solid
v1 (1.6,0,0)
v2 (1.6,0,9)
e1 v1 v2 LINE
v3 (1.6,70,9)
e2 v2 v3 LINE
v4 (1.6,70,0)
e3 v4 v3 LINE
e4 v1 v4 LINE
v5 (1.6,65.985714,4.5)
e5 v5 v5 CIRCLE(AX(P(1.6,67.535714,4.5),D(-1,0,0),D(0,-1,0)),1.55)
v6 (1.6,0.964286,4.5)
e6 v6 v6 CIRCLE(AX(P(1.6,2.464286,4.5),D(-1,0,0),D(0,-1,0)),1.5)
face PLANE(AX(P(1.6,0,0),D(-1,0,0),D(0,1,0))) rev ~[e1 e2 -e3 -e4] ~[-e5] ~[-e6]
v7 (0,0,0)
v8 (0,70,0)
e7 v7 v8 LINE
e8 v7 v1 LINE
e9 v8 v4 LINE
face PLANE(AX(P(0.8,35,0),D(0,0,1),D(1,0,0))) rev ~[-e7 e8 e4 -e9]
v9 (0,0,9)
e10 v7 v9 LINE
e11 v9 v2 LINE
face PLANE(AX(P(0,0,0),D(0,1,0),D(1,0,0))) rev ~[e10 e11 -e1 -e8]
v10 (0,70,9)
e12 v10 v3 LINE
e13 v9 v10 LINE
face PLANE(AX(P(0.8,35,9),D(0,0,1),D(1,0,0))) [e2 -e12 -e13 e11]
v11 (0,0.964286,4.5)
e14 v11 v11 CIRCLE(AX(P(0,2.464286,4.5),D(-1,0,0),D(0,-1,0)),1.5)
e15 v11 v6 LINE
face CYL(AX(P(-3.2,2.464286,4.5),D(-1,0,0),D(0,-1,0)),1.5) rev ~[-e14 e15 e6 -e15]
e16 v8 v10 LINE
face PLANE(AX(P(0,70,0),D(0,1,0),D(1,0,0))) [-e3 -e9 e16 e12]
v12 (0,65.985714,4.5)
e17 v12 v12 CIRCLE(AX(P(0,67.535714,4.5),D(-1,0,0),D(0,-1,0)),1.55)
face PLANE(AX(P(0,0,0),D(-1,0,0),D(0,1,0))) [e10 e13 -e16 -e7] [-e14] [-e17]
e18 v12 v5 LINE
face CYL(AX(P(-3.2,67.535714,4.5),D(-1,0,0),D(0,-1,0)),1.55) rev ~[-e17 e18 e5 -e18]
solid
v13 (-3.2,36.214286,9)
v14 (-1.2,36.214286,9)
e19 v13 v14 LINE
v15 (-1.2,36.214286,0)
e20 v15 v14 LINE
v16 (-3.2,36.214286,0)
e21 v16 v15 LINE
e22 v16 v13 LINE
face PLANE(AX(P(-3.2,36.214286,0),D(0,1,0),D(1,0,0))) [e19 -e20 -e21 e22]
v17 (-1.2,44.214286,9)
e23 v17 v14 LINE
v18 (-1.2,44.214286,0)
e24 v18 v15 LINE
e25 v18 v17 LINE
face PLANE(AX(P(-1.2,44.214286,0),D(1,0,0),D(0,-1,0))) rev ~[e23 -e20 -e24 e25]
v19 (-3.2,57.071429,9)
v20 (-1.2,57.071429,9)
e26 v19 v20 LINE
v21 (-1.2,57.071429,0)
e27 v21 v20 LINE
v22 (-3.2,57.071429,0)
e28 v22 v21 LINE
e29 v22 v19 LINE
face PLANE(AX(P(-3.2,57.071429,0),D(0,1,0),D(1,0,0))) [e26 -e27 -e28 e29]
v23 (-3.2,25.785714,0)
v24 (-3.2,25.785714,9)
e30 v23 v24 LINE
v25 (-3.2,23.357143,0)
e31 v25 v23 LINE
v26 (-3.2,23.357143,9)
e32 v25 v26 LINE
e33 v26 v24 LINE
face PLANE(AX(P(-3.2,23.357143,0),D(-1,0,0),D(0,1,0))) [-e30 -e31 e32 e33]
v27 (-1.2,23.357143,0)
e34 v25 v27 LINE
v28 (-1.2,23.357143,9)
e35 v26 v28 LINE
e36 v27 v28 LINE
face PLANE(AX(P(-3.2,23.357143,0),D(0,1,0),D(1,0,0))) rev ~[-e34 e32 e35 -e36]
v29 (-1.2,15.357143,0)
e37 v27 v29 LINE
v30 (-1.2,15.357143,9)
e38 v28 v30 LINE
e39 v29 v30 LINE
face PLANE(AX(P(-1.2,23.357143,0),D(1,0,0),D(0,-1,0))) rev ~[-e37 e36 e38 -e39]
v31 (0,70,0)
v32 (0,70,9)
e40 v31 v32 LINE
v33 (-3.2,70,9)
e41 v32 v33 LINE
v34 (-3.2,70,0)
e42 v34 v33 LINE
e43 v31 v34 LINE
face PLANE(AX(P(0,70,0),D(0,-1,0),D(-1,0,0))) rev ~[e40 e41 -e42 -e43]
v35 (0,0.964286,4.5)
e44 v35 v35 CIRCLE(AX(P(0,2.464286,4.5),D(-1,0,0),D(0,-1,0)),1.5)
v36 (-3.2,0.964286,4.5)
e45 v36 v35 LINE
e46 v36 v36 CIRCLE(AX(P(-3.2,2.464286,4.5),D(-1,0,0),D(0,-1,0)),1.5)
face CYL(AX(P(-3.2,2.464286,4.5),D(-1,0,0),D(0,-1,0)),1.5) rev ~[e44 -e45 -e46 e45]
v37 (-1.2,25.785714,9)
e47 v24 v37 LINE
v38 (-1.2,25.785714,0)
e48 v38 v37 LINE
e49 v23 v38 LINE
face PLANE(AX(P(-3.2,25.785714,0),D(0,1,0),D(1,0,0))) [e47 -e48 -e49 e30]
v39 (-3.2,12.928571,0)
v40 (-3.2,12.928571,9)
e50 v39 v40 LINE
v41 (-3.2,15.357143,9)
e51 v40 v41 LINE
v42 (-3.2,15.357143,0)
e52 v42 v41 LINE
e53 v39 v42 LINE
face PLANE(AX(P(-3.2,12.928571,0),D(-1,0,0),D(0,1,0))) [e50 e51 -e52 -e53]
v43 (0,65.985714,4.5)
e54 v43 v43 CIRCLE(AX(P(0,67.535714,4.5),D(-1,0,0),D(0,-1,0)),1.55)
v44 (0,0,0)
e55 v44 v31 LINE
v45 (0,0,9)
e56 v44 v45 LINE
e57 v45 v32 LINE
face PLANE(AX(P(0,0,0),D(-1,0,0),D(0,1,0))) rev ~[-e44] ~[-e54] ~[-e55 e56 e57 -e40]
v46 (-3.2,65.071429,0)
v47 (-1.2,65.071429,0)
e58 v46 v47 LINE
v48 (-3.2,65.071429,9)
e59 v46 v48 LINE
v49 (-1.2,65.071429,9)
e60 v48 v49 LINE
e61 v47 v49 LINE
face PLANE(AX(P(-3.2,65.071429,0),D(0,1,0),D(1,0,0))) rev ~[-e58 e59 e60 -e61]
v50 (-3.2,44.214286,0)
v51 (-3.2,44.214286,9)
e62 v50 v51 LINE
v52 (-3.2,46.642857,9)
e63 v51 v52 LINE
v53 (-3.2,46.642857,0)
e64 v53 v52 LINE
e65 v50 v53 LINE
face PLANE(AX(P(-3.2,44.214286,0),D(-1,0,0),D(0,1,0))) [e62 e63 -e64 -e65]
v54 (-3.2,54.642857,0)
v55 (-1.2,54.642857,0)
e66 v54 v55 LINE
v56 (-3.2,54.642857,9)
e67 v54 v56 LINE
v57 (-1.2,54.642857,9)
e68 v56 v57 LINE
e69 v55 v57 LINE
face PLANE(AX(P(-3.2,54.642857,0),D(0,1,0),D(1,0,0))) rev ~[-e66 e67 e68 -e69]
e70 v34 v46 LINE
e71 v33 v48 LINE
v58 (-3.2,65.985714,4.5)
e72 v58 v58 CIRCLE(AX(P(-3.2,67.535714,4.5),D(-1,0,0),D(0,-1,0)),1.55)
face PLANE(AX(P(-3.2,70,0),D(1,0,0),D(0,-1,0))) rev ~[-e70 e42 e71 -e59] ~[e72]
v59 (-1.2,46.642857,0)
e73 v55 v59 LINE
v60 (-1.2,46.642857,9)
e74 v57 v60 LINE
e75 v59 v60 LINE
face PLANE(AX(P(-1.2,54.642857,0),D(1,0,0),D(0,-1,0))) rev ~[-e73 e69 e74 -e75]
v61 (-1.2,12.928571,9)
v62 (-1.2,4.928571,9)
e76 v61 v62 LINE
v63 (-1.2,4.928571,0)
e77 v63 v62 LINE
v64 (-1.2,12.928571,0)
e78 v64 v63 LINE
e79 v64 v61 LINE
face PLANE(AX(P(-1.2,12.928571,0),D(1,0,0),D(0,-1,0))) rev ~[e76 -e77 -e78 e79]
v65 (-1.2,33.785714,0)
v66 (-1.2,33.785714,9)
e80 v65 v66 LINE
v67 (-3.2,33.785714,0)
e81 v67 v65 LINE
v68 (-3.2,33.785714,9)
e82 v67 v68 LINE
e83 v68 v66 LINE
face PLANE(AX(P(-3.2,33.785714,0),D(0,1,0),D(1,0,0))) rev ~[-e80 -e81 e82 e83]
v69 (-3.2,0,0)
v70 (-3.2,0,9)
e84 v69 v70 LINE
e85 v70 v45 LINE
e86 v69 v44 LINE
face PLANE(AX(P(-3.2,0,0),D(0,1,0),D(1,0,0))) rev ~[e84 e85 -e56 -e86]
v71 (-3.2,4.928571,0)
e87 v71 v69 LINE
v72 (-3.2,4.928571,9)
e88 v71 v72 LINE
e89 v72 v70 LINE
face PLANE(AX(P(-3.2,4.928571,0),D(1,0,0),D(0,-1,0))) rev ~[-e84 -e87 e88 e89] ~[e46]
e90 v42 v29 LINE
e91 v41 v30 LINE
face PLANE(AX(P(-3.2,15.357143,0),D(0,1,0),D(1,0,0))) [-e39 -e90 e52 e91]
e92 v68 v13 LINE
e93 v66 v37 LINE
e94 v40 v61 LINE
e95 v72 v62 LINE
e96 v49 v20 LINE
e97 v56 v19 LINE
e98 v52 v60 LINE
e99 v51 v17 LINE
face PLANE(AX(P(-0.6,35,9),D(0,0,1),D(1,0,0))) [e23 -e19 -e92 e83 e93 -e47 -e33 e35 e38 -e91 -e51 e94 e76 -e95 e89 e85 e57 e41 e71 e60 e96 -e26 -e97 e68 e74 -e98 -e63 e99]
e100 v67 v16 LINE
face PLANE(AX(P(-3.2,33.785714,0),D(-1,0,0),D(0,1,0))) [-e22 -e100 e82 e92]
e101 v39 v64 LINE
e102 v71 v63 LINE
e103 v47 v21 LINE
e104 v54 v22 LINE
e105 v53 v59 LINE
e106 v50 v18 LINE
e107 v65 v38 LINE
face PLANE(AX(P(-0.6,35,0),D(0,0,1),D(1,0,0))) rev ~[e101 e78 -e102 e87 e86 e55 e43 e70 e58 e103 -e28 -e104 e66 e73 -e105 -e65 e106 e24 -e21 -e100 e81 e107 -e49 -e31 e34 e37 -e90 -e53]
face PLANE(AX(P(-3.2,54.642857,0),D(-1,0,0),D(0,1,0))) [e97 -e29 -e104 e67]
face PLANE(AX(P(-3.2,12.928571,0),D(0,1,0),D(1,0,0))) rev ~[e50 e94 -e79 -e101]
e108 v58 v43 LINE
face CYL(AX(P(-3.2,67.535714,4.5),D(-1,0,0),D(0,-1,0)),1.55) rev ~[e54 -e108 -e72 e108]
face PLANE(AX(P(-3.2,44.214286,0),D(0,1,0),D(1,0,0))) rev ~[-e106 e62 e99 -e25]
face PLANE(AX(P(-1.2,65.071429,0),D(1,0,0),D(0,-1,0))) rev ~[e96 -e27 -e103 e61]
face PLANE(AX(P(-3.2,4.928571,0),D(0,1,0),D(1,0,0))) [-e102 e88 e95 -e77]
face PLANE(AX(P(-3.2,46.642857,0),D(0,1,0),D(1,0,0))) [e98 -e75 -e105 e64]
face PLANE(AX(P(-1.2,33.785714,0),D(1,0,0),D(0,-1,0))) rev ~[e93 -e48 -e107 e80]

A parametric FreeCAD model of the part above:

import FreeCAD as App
import Part
import Sketcher
from FreeCAD import Vector
Q = App.Units.Quantity

doc = App.newDocument("Part")
body = doc.addObject("PartDesign::Body", "Body")

# Sketch on XY plane
sketch1 = body.newObject("Sketcher::SketchObject", "Sketch")
sketch1.AttachmentSupport = (doc.getObject("XY_Plane"), [""])
sketch1.MapMode = "FlatFace"
sketch1.addGeometry([
    Part.LineSegment(Vector(0, 70, 0), Vector(-3.2, 70, 0)),  # 0
    Part.LineSegment(Vector(-3.2, 70, 0), Vector(-3.2, 65.1, 0)),  # 1
    Part.LineSegment(Vector(-3.2, 65.1, 0), Vector(-1.2, 65.1, 0)),  # 2
    Part.LineSegment(Vector(-1.2, 65.1, 0), Vector(-1.2, 57.1, 0)),  # 3
    Part.LineSegment(Vector(-1.2, 57.1, 0), Vector(-3.2, 57.1, 0)),  # 4
    Part.LineSegment(Vector(-3.2, 57.1, 0), Vector(-3.2, 54.6, 0)),  # 5
    Part.LineSegment(Vector(-3.2, 54.6, 0), Vector(-1.2, 54.6, 0)),  # 6
    Part.LineSegment(Vector(-1.2, 54.6, 0), Vector(-1.2, 46.6, 0)),  # 7
    Part.LineSegment(Vector(-1.2, 46.6, 0), Vector(-3.2, 46.6, 0)),  # 8
    Part.LineSegment(Vector(-3.2, 46.6, 0), Vector(-3.2, 44.2, 0)),  # 9
    Part.LineSegment(Vector(-3.2, 44.2, 0), Vector(-1.2, 44.2, 0)),  # 10
    Part.LineSegment(Vector(-1.2, 44.2, 0), Vector(-1.2, 36.2, 0)),  # 11
    Part.LineSegment(Vector(-1.2, 36.2, 0), Vector(-3.2, 36.2, 0)),  # 12
    Part.LineSegment(Vector(-3.2, 36.2, 0), Vector(-3.2, 33.8, 0)),  # 13
    Part.LineSegment(Vector(-3.2, 33.8, 0), Vector(-1.2, 33.8, 0)),  # 14
    Part.LineSegment(Vector(-1.2, 33.8, 0), Vector(-1.2, 25.8, 0)),  # 15
    Part.LineSegment(Vector(-1.2, 25.8, 0), Vector(-3.2, 25.8, 0)),  # 16
    Part.LineSegment(Vector(-3.2, 25.8, 0), Vector(-3.2, 23.4, 0)),  # 17
    Part.LineSegment(Vector(-3.2, 23.4, 0), Vector(-1.2, 23.4, 0)),  # 18
    Part.LineSegment(Vector(-1.2, 23.4, 0), Vector(-1.2, 15.4, 0)),  # 19
    Part.LineSegment(Vector(-1.2, 15.4, 0), Vector(-3.2, 15.4, 0)),  # 20
    Part.LineSegment(Vector(-3.2, 15.4, 0), Vector(-3.2, 12.9, 0)),  # 21
    Part.LineSegment(Vector(-3.2, 12.9, 0), Vector(-1.2, 12.9, 0)),  # 22
    Part.LineSegment(Vector(-1.2, 12.9, 0), Vector(-1.2, 4.9, 0)),  # 23
    Part.LineSegment(Vector(-1.2, 4.9, 0), Vector(-3.2, 4.9, 0)),  # 24
    Part.LineSegment(Vector(-3.2, 4.9, 0), Vector(-3.2, 0, 0)),  # 25
    Part.LineSegment(Vector(-3.2, 0, 0), Vector(0, 0, 0)),  # 26
    Part.LineSegment(Vector(0, 0, 0), Vector(0, 70, 0)),  # 27
], False)
sketch1.addConstraint([
    Sketcher.Constraint("Coincident", 0, 2, 1, 1),
    Sketcher.Constraint("Coincident", 1, 2, 2, 1),
    Sketcher.Constraint("Coincident", 2, 2, 3, 1),
    Sketcher.Constraint("Coincident", 3, 2, 4, 1),
    Sketcher.Constraint("Coincident", 4, 2, 5, 1),
    Sketcher.Constraint("Coincident", 5, 2, 6, 1),
    Sketcher.Constraint("Coincident", 6, 2, 7, 1),
    Sketcher.Constraint("Coincident", 7, 2, 8, 1),
    Sketcher.Constraint("Coincident", 8, 2, 9, 1),
    Sketcher.Constraint("Coincident", 9, 2, 10, 1),
    Sketcher.Constraint("Coincident", 10, 2, 11, 1),
    Sketcher.Constraint("Coincident", 11, 2, 12, 1),
    Sketcher.Constraint("Coincident", 12, 2, 13, 1),
    Sketcher.Constraint("Coincident", 13, 2, 14, 1),
    Sketcher.Constraint("Coincident", 14, 2, 15, 1),
    Sketcher.Constraint("Coincident", 15, 2, 16, 1),
    Sketcher.Constraint("Coincident", 16, 2, 17, 1),
    Sketcher.Constraint("Coincident", 17, 2, 18, 1),
    Sketcher.Constraint("Coincident", 18, 2, 19, 1),
    Sketcher.Constraint("Coincident", 19, 2, 20, 1),
    Sketcher.Constraint("Coincident", 20, 2, 21, 1),
    Sketcher.Constraint("Coincident", 21, 2, 22, 1),
    Sketcher.Constraint("Coincident", 22, 2, 23, 1),
    Sketcher.Constraint("Coincident", 23, 2, 24, 1),
    Sketcher.Constraint("Coincident", 24, 2, 25, 1),
    Sketcher.Constraint("Coincident", 25, 2, 26, 1),
    Sketcher.Constraint("Coincident", 26, 2, 27, 1),
    Sketcher.Constraint("Coincident", 27, 2, 0, 1),
    Sketcher.Constraint("Horizontal", 0),
    Sketcher.Constraint("Vertical", 1),
    Sketcher.Constraint("Horizontal", 2),
    Sketcher.Constraint("Vertical", 3),
    Sketcher.Constraint("Horizontal", 4),
    Sketcher.Constraint("Vertical", 5),
    Sketcher.Constraint("Horizontal", 6),
    Sketcher.Constraint("Vertical", 7),
    Sketcher.Constraint("Horizontal", 8),
    Sketcher.Constraint("Vertical", 9),
    Sketcher.Constraint("Horizontal", 10),
    Sketcher.Constraint("Vertical", 11),
    Sketcher.Constraint("Horizontal", 12),
    Sketcher.Constraint("Vertical", 13),
    Sketcher.Constraint("Horizontal", 14),
    Sketcher.Constraint("Vertical", 15),
    Sketcher.Constraint("Horizontal", 16),
    Sketcher.Constraint("Vertical", 17),
    Sketcher.Constraint("Horizontal", 18),
    Sketcher.Constraint("Vertical", 19),
    Sketcher.Constraint("Horizontal", 20),
    Sketcher.Constraint("Vertical", 21),
    Sketcher.Constraint("Horizontal", 22),
    Sketcher.Constraint("Vertical", 23),
    Sketcher.Constraint("Horizontal", 24),
    Sketcher.Constraint("Vertical", 25),
    Sketcher.Constraint("Horizontal", 26),
    Sketcher.Constraint("Vertical", 27),
    Sketcher.Constraint("Coincident", 26, 2, -1, 1),
    Sketcher.Constraint("Vertical", 1, 2, 4, 2),
    Sketcher.Constraint("Vertical", 3, 2, 6, 2),
    Sketcher.Constraint("Vertical", 5, 2, 8, 2),
    Sketcher.Constraint("Vertical", 7, 2, 10, 2),
    Sketcher.Constraint("Vertical", 9, 2, 12, 2),
    Sketcher.Constraint("Vertical", 11, 2, 14, 2),
    Sketcher.Constraint("Vertical", 13, 2, 16, 2),
    Sketcher.Constraint("Vertical", 15, 2, 18, 2),
    Sketcher.Constraint("Vertical", 17, 2, 20, 2),
    Sketcher.Constraint("Vertical", 19, 2, 22, 2),
    Sketcher.Constraint("Vertical", 21, 2, 24, 2),
    Sketcher.Constraint("Equal", 3, 7),
    Sketcher.Constraint("Equal", 5, 9),
    Sketcher.Constraint("Equal", 7, 11),
    Sketcher.Constraint("Equal", 9, 13),
    Sketcher.Constraint("Equal", 11, 15),
    Sketcher.Constraint("Equal", 13, 17),
    Sketcher.Constraint("Equal", 15, 19),
    Sketcher.Constraint("Equal", 17, 21),
    Sketcher.Constraint("Equal", 19, 23),
    Sketcher.Constraint("Equal", 1, 25),
    Sketcher.Constraint("DistanceX", 2, 1, 2, 2, Q("2 mm")),
    Sketcher.Constraint("DistanceY", 3, 2, 3, 1, Q("8 mm")),
    Sketcher.Constraint("DistanceY", 27, 1, 27, 2, Q("70 mm")),
    Sketcher.Constraint("DistanceX", 0, 2, 0, 1, Q("3.2 mm")),
    Sketcher.Constraint("DistanceY", 1, 2, 1, 1, Q("4.928571 mm")),
])
pad1 = body.newObject("PartDesign::Pad", "Pad")
pad1.Profile = sketch1
pad1.Length = 9
body2 = doc.addObject("PartDesign::Body", "Body001")

# Sketch on XY plane
sketch2 = body2.newObject("Sketcher::SketchObject", "Sketch001")
sketch2.AttachmentSupport = (doc.getObject("XY_Plane001"), [""])
sketch2.MapMode = "FlatFace"
sketch2.addGeometry([
    Part.LineSegment(Vector(0, 70, 0), Vector(0, 0, 0)),
    Part.LineSegment(Vector(0, 0, 0), Vector(1.6, 0, 0)),
    Part.LineSegment(Vector(1.6, 0, 0), Vector(1.6, 70, 0)),
    Part.LineSegment(Vector(1.6, 70, 0), Vector(0, 70, 0)),
], False)
sketch2.addConstraint([
    Sketcher.Constraint("Coincident", 0, 2, 1, 1),
    Sketcher.Constraint("Coincident", 1, 2, 2, 1),
    Sketcher.Constraint("Coincident", 2, 2, 3, 1),
    Sketcher.Constraint("Coincident", 3, 2, 0, 1),
    Sketcher.Constraint("Vertical", 0),
    Sketcher.Constraint("Horizontal", 1),
    Sketcher.Constraint("Vertical", 2),
    Sketcher.Constraint("Horizontal", 3),
    Sketcher.Constraint("Coincident", 0, 2, -1, 1),
    Sketcher.Constraint("DistanceY", 0, 2, 0, 1, Q("70 mm")),
    Sketcher.Constraint("DistanceX", 1, 1, 1, 2, Q("1.6 mm")),
])
pad2 = body2.newObject("PartDesign::Pad", "Pad001")
pad2.Profile = sketch2
pad2.Length = 9
body3 = doc.addObject("PartDesign::Body", "Body002")
body3.AllowCompound = True

# Sketch on YZ plane
sketch3 = body3.newObject("Sketcher::SketchObject", "Sketch002")
sketch3.AttachmentSupport = (doc.getObject("YZ_Plane002"), [""])
sketch3.MapMode = "FlatFace"
sketch3.AttachmentOffset = App.Placement(Vector(0, 0, -3.2), App.Rotation())
sketch3.addGeometry([
    Part.Circle(Vector(67.5, 4.5, 0), Vector(0, 0, 1), 1.6),
    Part.Circle(Vector(2.5, 4.5, 0), Vector(0, 0, 1), 1.5),
], False)
sketch3.addConstraint([
    Sketcher.Constraint("Horizontal", 0, 3, 1, 3),
    Sketcher.Constraint("Diameter", 1, Q("3 mm")),
    Sketcher.Constraint("Diameter", 0, Q("3.1 mm")),
    Sketcher.Constraint("DistanceY", -1, 1, 0, 3, Q("4.5 mm")),
    Sketcher.Constraint("DistanceX", 1, 3, 0, 3, Q("65.071429 mm")),
    Sketcher.Constraint("DistanceX", -1, 1, 0, 3, Q("67.535714 mm")),
])
pad3 = body3.newObject("PartDesign::Pad", "Pad002")
pad3.Profile = sketch3
pad3.Length = 4.801
doc.recompute()

body4 = doc.addObject("PartDesign::Body", "Body003")
body4.BaseFeature = body3
boolean = body.newObject("PartDesign::Boolean", "Boolean")
boolean.Type = "Cut"
boolean.addObjects([body4])
doc.recompute()

boolean2 = body2.newObject("PartDesign::Boolean", "Boolean001")
boolean2.Type = "Cut"
boolean2.addObjects([body3])

doc.recompute()
